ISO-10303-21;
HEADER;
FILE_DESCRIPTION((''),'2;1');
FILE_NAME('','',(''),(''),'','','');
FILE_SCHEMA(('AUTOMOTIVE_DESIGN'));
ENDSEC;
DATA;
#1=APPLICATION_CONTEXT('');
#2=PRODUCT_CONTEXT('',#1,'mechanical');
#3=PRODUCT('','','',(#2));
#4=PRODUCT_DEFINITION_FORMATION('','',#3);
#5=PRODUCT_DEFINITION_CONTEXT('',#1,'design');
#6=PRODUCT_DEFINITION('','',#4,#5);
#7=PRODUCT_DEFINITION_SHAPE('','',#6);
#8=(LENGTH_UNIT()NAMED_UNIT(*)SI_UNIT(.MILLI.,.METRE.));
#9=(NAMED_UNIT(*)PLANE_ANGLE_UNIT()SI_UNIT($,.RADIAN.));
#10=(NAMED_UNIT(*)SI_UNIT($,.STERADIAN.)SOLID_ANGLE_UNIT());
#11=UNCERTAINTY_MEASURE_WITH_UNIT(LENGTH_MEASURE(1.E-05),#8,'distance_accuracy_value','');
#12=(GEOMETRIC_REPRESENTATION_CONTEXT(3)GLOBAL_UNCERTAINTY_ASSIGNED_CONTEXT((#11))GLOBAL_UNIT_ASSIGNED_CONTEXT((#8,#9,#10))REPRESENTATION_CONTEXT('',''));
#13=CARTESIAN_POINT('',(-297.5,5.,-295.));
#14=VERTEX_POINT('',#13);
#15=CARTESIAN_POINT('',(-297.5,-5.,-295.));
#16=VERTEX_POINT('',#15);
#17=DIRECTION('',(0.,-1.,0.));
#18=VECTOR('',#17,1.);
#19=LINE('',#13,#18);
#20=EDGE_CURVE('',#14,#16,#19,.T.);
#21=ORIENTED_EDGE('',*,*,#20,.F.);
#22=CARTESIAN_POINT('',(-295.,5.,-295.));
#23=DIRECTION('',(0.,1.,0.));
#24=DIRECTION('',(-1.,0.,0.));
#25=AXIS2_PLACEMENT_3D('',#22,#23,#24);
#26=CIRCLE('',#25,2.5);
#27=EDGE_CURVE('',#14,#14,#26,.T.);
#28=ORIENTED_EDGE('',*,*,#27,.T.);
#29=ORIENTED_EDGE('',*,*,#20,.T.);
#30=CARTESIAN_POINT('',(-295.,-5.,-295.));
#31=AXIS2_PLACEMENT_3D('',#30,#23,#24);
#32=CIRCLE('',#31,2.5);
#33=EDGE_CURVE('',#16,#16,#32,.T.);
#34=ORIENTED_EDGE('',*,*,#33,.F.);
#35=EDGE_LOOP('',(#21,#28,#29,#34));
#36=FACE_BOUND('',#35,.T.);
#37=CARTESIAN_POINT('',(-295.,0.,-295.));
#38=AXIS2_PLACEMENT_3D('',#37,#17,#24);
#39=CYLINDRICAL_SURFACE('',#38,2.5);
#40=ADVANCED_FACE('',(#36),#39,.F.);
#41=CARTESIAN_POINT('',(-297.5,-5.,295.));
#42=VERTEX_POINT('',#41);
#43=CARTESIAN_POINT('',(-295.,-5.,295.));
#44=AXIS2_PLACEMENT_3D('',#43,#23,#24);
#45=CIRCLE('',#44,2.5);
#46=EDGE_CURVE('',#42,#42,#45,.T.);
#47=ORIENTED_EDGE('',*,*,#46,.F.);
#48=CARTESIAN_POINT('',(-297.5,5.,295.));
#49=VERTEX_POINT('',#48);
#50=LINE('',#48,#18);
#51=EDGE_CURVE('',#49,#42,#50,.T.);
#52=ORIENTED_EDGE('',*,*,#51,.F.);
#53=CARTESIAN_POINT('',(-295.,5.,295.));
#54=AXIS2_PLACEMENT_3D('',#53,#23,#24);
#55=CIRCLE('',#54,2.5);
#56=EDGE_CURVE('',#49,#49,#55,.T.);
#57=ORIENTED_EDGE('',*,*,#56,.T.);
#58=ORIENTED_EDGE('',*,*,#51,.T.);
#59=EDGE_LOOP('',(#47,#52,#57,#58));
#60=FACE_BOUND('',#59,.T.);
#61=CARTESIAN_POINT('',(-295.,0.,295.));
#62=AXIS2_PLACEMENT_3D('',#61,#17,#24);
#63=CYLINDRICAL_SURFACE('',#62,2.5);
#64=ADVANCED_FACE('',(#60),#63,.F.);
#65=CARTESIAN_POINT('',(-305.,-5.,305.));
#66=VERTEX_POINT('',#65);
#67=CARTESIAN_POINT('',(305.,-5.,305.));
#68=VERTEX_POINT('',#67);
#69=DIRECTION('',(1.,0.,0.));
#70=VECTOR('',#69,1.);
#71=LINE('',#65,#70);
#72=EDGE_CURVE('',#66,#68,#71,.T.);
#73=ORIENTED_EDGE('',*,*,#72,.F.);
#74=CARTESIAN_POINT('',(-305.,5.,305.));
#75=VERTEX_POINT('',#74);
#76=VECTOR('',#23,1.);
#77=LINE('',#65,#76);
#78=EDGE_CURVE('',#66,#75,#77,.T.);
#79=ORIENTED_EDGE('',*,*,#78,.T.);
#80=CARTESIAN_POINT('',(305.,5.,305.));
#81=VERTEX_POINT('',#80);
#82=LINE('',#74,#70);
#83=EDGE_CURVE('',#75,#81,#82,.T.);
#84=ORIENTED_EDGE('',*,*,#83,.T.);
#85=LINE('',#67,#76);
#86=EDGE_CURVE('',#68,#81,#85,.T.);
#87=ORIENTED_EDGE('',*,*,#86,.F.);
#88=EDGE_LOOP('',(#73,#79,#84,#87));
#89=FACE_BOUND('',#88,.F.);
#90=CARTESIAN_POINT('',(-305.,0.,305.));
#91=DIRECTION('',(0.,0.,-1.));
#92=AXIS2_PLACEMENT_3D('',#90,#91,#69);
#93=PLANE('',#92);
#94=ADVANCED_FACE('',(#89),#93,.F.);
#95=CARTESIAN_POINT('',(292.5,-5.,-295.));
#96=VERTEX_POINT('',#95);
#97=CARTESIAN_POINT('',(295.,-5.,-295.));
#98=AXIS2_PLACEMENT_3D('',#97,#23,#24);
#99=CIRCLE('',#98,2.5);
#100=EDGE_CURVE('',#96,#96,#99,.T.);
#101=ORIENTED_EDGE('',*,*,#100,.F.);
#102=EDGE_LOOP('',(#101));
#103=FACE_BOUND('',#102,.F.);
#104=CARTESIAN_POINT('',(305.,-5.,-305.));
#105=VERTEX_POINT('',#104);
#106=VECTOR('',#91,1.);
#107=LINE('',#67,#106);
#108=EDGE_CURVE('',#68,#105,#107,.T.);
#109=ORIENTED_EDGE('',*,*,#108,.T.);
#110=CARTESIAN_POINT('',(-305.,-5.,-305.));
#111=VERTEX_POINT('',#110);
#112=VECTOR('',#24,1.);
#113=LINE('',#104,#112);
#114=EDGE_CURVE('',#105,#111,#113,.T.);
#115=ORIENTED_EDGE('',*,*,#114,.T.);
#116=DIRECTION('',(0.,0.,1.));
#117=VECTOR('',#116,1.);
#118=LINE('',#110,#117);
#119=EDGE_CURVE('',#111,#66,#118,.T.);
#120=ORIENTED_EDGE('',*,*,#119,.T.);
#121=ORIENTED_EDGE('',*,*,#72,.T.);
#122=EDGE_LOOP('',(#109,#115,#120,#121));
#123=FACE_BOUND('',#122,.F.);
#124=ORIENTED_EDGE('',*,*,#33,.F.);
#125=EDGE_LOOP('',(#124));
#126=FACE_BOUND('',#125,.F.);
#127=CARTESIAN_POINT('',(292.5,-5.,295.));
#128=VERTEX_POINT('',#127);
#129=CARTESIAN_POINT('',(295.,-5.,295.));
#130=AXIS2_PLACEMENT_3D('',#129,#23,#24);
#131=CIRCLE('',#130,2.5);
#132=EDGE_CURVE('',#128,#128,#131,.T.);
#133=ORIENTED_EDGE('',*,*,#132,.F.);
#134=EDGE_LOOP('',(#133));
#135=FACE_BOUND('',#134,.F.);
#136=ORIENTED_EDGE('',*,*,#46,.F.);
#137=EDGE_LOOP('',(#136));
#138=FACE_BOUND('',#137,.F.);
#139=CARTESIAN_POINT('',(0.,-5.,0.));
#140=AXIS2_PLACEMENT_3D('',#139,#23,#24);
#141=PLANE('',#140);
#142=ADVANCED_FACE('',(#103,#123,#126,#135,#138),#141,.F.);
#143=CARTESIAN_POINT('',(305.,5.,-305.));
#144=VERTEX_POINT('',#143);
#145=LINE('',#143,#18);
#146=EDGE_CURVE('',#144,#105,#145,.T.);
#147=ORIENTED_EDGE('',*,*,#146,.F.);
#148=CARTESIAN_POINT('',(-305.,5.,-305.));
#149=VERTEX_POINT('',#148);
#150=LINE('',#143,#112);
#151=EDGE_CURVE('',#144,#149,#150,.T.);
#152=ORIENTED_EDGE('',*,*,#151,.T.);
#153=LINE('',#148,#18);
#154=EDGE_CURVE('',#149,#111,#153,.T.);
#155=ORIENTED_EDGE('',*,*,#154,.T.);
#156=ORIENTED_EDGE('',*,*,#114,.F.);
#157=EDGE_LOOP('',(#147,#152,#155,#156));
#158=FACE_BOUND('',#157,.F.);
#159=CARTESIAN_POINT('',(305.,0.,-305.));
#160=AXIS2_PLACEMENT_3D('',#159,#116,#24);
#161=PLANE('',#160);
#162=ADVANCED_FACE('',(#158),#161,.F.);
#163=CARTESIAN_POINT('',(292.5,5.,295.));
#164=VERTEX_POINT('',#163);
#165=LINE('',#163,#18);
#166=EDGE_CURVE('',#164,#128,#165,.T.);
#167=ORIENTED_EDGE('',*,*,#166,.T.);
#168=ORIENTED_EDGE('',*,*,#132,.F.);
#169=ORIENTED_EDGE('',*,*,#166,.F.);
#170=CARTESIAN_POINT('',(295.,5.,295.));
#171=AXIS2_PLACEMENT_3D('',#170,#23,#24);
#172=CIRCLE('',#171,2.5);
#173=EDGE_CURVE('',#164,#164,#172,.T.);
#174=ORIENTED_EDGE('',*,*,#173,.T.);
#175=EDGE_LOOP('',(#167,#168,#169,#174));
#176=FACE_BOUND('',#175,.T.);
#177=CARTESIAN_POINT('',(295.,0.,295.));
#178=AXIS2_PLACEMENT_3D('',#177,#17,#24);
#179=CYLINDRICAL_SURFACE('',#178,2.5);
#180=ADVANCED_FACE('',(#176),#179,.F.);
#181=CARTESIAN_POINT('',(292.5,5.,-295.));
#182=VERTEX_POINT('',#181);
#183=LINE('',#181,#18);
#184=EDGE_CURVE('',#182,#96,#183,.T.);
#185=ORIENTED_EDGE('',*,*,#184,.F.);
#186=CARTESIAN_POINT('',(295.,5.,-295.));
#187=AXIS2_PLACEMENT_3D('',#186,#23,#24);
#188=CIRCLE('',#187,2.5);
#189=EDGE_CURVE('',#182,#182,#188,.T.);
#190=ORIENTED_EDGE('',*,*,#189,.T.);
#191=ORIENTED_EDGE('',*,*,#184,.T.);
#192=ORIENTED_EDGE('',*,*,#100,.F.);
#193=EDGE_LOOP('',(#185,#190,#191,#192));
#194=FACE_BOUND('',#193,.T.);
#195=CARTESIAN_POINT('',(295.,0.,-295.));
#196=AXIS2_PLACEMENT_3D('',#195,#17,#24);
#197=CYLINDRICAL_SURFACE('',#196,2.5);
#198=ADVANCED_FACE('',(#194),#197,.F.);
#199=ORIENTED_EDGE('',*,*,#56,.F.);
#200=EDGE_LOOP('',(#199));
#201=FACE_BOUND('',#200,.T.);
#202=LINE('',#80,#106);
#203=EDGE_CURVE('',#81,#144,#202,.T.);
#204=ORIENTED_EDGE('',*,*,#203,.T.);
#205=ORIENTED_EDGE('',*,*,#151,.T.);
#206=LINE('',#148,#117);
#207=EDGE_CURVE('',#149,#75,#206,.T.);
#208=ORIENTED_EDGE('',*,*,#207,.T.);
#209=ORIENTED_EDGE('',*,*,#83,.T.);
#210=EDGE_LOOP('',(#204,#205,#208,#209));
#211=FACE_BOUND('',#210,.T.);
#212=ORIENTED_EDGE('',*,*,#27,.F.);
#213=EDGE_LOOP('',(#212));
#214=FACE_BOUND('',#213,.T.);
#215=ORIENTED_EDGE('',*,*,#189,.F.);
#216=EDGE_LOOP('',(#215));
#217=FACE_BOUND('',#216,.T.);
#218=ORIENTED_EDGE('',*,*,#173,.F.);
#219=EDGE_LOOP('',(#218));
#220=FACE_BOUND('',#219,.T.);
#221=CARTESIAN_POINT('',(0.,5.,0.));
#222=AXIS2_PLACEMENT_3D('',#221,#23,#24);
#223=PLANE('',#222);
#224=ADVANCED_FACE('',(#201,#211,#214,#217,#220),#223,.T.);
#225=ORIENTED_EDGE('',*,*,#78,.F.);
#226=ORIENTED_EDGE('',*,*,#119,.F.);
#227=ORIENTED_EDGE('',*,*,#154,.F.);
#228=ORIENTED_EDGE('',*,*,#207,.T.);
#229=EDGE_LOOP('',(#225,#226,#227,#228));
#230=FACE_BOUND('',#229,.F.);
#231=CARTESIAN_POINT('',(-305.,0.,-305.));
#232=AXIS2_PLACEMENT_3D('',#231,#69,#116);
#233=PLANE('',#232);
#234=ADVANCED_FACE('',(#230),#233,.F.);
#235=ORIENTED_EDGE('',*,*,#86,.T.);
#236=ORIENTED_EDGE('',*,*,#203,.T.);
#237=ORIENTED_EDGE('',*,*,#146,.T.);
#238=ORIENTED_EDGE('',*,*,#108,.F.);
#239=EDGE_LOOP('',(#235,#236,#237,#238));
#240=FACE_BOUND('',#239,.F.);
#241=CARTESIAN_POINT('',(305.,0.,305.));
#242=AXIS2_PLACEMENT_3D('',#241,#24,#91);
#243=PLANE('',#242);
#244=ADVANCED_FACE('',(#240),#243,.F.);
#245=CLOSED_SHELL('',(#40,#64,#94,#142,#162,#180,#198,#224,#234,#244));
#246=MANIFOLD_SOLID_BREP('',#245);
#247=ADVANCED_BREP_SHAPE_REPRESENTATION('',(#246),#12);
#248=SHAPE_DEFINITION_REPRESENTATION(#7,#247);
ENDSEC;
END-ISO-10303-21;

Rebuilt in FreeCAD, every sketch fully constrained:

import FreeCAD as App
import Part
import Sketcher

V = App.Vector

doc = App.newDocument("Part")
body = doc.addObject("PartDesign::Body", "Body")

sketch1 = body.newObject("Sketcher::SketchObject", "Sketch")
sketch1.AttachmentSupport = (doc.getObject("XZ_Plane"), [""])
sketch1.MapMode = "FlatFace"
sketch1.addGeometry(Part.LineSegment(V(-305, -305, 0), V(-305, 305, 0)), False)
sketch1.addGeometry(Part.LineSegment(V(-305, 305, 0), V(305, 305, 0)), False)
sketch1.addGeometry(Part.LineSegment(V(305, 305, 0), V(305, -305, 0)), False)
sketch1.addGeometry(Part.LineSegment(V(305, -305, 0), V(-305, -305, 0)), False)
sketch1.addGeometry(Part.Circle(V(295, -295, 0), V(0, 0, 1), 2.5), False)
sketch1.addGeometry(Part.Circle(V(-295, -295, 0), V(0, 0, 1), 2.5), False)
sketch1.addGeometry(Part.Circle(V(295, 295, 0), V(0, 0, 1), 2.5), False)
sketch1.addGeometry(Part.Circle(V(-295, 295, 0), V(0, 0, 1), 2.5), False)
sketch1.addConstraint(Sketcher.Constraint("Coincident", 0, 2, 1, 1))
sketch1.addConstraint(Sketcher.Constraint("Coincident", 1, 2, 2, 1))
sketch1.addConstraint(Sketcher.Constraint("Coincident", 2, 2, 3, 1))
sketch1.addConstraint(Sketcher.Constraint("Coincident", 3, 2, 0, 1))
sketch1.addConstraint(Sketcher.Constraint("Vertical", 0))
sketch1.addConstraint(Sketcher.Constraint("Horizontal", 1))
sketch1.addConstraint(Sketcher.Constraint("Vertical", 2))
sketch1.addConstraint(Sketcher.Constraint("Horizontal", 3))
sketch1.addConstraint(Sketcher.Constraint("Equal", 4, 5))
sketch1.addConstraint(Sketcher.Constraint("Equal", 5, 6))
sketch1.addConstraint(Sketcher.Constraint("Equal", 6, 7))
sketch1.addConstraint(Sketcher.Constraint("Symmetric", 5, 3, 6, 3, -1, 1))
sketch1.addConstraint(Sketcher.Constraint("Symmetric", 4, 3, 7, 3, -1, 1))
sketch1.addConstraint(Sketcher.Constraint("Symmetric", 0, 2, 2, 2, -1, 1))
sketch1.addConstraint(Sketcher.Constraint("Symmetric", 4, 3, 5, 3, -2))
sketch1.addConstraint(Sketcher.Constraint("Equal", 3, 0))
sketch1.addConstraint(Sketcher.Constraint("Diameter", 4, 5.0))
sketch1.addConstraint(Sketcher.Constraint("DistanceX", 1, 1, 1, 2, 610.0))
sketch1.addConstraint(Sketcher.Constraint("DistanceX", 5, 3, 4, 3, 590.0))
sketch1.addConstraint(Sketcher.Constraint("DistanceY", 4, 3, 6, 3, 590.0))
pad1 = body.newObject("PartDesign::Pad", "Pad")
pad1.Profile = sketch1
pad1.Length = 10
pad1.Midplane = True

doc.recompute()
